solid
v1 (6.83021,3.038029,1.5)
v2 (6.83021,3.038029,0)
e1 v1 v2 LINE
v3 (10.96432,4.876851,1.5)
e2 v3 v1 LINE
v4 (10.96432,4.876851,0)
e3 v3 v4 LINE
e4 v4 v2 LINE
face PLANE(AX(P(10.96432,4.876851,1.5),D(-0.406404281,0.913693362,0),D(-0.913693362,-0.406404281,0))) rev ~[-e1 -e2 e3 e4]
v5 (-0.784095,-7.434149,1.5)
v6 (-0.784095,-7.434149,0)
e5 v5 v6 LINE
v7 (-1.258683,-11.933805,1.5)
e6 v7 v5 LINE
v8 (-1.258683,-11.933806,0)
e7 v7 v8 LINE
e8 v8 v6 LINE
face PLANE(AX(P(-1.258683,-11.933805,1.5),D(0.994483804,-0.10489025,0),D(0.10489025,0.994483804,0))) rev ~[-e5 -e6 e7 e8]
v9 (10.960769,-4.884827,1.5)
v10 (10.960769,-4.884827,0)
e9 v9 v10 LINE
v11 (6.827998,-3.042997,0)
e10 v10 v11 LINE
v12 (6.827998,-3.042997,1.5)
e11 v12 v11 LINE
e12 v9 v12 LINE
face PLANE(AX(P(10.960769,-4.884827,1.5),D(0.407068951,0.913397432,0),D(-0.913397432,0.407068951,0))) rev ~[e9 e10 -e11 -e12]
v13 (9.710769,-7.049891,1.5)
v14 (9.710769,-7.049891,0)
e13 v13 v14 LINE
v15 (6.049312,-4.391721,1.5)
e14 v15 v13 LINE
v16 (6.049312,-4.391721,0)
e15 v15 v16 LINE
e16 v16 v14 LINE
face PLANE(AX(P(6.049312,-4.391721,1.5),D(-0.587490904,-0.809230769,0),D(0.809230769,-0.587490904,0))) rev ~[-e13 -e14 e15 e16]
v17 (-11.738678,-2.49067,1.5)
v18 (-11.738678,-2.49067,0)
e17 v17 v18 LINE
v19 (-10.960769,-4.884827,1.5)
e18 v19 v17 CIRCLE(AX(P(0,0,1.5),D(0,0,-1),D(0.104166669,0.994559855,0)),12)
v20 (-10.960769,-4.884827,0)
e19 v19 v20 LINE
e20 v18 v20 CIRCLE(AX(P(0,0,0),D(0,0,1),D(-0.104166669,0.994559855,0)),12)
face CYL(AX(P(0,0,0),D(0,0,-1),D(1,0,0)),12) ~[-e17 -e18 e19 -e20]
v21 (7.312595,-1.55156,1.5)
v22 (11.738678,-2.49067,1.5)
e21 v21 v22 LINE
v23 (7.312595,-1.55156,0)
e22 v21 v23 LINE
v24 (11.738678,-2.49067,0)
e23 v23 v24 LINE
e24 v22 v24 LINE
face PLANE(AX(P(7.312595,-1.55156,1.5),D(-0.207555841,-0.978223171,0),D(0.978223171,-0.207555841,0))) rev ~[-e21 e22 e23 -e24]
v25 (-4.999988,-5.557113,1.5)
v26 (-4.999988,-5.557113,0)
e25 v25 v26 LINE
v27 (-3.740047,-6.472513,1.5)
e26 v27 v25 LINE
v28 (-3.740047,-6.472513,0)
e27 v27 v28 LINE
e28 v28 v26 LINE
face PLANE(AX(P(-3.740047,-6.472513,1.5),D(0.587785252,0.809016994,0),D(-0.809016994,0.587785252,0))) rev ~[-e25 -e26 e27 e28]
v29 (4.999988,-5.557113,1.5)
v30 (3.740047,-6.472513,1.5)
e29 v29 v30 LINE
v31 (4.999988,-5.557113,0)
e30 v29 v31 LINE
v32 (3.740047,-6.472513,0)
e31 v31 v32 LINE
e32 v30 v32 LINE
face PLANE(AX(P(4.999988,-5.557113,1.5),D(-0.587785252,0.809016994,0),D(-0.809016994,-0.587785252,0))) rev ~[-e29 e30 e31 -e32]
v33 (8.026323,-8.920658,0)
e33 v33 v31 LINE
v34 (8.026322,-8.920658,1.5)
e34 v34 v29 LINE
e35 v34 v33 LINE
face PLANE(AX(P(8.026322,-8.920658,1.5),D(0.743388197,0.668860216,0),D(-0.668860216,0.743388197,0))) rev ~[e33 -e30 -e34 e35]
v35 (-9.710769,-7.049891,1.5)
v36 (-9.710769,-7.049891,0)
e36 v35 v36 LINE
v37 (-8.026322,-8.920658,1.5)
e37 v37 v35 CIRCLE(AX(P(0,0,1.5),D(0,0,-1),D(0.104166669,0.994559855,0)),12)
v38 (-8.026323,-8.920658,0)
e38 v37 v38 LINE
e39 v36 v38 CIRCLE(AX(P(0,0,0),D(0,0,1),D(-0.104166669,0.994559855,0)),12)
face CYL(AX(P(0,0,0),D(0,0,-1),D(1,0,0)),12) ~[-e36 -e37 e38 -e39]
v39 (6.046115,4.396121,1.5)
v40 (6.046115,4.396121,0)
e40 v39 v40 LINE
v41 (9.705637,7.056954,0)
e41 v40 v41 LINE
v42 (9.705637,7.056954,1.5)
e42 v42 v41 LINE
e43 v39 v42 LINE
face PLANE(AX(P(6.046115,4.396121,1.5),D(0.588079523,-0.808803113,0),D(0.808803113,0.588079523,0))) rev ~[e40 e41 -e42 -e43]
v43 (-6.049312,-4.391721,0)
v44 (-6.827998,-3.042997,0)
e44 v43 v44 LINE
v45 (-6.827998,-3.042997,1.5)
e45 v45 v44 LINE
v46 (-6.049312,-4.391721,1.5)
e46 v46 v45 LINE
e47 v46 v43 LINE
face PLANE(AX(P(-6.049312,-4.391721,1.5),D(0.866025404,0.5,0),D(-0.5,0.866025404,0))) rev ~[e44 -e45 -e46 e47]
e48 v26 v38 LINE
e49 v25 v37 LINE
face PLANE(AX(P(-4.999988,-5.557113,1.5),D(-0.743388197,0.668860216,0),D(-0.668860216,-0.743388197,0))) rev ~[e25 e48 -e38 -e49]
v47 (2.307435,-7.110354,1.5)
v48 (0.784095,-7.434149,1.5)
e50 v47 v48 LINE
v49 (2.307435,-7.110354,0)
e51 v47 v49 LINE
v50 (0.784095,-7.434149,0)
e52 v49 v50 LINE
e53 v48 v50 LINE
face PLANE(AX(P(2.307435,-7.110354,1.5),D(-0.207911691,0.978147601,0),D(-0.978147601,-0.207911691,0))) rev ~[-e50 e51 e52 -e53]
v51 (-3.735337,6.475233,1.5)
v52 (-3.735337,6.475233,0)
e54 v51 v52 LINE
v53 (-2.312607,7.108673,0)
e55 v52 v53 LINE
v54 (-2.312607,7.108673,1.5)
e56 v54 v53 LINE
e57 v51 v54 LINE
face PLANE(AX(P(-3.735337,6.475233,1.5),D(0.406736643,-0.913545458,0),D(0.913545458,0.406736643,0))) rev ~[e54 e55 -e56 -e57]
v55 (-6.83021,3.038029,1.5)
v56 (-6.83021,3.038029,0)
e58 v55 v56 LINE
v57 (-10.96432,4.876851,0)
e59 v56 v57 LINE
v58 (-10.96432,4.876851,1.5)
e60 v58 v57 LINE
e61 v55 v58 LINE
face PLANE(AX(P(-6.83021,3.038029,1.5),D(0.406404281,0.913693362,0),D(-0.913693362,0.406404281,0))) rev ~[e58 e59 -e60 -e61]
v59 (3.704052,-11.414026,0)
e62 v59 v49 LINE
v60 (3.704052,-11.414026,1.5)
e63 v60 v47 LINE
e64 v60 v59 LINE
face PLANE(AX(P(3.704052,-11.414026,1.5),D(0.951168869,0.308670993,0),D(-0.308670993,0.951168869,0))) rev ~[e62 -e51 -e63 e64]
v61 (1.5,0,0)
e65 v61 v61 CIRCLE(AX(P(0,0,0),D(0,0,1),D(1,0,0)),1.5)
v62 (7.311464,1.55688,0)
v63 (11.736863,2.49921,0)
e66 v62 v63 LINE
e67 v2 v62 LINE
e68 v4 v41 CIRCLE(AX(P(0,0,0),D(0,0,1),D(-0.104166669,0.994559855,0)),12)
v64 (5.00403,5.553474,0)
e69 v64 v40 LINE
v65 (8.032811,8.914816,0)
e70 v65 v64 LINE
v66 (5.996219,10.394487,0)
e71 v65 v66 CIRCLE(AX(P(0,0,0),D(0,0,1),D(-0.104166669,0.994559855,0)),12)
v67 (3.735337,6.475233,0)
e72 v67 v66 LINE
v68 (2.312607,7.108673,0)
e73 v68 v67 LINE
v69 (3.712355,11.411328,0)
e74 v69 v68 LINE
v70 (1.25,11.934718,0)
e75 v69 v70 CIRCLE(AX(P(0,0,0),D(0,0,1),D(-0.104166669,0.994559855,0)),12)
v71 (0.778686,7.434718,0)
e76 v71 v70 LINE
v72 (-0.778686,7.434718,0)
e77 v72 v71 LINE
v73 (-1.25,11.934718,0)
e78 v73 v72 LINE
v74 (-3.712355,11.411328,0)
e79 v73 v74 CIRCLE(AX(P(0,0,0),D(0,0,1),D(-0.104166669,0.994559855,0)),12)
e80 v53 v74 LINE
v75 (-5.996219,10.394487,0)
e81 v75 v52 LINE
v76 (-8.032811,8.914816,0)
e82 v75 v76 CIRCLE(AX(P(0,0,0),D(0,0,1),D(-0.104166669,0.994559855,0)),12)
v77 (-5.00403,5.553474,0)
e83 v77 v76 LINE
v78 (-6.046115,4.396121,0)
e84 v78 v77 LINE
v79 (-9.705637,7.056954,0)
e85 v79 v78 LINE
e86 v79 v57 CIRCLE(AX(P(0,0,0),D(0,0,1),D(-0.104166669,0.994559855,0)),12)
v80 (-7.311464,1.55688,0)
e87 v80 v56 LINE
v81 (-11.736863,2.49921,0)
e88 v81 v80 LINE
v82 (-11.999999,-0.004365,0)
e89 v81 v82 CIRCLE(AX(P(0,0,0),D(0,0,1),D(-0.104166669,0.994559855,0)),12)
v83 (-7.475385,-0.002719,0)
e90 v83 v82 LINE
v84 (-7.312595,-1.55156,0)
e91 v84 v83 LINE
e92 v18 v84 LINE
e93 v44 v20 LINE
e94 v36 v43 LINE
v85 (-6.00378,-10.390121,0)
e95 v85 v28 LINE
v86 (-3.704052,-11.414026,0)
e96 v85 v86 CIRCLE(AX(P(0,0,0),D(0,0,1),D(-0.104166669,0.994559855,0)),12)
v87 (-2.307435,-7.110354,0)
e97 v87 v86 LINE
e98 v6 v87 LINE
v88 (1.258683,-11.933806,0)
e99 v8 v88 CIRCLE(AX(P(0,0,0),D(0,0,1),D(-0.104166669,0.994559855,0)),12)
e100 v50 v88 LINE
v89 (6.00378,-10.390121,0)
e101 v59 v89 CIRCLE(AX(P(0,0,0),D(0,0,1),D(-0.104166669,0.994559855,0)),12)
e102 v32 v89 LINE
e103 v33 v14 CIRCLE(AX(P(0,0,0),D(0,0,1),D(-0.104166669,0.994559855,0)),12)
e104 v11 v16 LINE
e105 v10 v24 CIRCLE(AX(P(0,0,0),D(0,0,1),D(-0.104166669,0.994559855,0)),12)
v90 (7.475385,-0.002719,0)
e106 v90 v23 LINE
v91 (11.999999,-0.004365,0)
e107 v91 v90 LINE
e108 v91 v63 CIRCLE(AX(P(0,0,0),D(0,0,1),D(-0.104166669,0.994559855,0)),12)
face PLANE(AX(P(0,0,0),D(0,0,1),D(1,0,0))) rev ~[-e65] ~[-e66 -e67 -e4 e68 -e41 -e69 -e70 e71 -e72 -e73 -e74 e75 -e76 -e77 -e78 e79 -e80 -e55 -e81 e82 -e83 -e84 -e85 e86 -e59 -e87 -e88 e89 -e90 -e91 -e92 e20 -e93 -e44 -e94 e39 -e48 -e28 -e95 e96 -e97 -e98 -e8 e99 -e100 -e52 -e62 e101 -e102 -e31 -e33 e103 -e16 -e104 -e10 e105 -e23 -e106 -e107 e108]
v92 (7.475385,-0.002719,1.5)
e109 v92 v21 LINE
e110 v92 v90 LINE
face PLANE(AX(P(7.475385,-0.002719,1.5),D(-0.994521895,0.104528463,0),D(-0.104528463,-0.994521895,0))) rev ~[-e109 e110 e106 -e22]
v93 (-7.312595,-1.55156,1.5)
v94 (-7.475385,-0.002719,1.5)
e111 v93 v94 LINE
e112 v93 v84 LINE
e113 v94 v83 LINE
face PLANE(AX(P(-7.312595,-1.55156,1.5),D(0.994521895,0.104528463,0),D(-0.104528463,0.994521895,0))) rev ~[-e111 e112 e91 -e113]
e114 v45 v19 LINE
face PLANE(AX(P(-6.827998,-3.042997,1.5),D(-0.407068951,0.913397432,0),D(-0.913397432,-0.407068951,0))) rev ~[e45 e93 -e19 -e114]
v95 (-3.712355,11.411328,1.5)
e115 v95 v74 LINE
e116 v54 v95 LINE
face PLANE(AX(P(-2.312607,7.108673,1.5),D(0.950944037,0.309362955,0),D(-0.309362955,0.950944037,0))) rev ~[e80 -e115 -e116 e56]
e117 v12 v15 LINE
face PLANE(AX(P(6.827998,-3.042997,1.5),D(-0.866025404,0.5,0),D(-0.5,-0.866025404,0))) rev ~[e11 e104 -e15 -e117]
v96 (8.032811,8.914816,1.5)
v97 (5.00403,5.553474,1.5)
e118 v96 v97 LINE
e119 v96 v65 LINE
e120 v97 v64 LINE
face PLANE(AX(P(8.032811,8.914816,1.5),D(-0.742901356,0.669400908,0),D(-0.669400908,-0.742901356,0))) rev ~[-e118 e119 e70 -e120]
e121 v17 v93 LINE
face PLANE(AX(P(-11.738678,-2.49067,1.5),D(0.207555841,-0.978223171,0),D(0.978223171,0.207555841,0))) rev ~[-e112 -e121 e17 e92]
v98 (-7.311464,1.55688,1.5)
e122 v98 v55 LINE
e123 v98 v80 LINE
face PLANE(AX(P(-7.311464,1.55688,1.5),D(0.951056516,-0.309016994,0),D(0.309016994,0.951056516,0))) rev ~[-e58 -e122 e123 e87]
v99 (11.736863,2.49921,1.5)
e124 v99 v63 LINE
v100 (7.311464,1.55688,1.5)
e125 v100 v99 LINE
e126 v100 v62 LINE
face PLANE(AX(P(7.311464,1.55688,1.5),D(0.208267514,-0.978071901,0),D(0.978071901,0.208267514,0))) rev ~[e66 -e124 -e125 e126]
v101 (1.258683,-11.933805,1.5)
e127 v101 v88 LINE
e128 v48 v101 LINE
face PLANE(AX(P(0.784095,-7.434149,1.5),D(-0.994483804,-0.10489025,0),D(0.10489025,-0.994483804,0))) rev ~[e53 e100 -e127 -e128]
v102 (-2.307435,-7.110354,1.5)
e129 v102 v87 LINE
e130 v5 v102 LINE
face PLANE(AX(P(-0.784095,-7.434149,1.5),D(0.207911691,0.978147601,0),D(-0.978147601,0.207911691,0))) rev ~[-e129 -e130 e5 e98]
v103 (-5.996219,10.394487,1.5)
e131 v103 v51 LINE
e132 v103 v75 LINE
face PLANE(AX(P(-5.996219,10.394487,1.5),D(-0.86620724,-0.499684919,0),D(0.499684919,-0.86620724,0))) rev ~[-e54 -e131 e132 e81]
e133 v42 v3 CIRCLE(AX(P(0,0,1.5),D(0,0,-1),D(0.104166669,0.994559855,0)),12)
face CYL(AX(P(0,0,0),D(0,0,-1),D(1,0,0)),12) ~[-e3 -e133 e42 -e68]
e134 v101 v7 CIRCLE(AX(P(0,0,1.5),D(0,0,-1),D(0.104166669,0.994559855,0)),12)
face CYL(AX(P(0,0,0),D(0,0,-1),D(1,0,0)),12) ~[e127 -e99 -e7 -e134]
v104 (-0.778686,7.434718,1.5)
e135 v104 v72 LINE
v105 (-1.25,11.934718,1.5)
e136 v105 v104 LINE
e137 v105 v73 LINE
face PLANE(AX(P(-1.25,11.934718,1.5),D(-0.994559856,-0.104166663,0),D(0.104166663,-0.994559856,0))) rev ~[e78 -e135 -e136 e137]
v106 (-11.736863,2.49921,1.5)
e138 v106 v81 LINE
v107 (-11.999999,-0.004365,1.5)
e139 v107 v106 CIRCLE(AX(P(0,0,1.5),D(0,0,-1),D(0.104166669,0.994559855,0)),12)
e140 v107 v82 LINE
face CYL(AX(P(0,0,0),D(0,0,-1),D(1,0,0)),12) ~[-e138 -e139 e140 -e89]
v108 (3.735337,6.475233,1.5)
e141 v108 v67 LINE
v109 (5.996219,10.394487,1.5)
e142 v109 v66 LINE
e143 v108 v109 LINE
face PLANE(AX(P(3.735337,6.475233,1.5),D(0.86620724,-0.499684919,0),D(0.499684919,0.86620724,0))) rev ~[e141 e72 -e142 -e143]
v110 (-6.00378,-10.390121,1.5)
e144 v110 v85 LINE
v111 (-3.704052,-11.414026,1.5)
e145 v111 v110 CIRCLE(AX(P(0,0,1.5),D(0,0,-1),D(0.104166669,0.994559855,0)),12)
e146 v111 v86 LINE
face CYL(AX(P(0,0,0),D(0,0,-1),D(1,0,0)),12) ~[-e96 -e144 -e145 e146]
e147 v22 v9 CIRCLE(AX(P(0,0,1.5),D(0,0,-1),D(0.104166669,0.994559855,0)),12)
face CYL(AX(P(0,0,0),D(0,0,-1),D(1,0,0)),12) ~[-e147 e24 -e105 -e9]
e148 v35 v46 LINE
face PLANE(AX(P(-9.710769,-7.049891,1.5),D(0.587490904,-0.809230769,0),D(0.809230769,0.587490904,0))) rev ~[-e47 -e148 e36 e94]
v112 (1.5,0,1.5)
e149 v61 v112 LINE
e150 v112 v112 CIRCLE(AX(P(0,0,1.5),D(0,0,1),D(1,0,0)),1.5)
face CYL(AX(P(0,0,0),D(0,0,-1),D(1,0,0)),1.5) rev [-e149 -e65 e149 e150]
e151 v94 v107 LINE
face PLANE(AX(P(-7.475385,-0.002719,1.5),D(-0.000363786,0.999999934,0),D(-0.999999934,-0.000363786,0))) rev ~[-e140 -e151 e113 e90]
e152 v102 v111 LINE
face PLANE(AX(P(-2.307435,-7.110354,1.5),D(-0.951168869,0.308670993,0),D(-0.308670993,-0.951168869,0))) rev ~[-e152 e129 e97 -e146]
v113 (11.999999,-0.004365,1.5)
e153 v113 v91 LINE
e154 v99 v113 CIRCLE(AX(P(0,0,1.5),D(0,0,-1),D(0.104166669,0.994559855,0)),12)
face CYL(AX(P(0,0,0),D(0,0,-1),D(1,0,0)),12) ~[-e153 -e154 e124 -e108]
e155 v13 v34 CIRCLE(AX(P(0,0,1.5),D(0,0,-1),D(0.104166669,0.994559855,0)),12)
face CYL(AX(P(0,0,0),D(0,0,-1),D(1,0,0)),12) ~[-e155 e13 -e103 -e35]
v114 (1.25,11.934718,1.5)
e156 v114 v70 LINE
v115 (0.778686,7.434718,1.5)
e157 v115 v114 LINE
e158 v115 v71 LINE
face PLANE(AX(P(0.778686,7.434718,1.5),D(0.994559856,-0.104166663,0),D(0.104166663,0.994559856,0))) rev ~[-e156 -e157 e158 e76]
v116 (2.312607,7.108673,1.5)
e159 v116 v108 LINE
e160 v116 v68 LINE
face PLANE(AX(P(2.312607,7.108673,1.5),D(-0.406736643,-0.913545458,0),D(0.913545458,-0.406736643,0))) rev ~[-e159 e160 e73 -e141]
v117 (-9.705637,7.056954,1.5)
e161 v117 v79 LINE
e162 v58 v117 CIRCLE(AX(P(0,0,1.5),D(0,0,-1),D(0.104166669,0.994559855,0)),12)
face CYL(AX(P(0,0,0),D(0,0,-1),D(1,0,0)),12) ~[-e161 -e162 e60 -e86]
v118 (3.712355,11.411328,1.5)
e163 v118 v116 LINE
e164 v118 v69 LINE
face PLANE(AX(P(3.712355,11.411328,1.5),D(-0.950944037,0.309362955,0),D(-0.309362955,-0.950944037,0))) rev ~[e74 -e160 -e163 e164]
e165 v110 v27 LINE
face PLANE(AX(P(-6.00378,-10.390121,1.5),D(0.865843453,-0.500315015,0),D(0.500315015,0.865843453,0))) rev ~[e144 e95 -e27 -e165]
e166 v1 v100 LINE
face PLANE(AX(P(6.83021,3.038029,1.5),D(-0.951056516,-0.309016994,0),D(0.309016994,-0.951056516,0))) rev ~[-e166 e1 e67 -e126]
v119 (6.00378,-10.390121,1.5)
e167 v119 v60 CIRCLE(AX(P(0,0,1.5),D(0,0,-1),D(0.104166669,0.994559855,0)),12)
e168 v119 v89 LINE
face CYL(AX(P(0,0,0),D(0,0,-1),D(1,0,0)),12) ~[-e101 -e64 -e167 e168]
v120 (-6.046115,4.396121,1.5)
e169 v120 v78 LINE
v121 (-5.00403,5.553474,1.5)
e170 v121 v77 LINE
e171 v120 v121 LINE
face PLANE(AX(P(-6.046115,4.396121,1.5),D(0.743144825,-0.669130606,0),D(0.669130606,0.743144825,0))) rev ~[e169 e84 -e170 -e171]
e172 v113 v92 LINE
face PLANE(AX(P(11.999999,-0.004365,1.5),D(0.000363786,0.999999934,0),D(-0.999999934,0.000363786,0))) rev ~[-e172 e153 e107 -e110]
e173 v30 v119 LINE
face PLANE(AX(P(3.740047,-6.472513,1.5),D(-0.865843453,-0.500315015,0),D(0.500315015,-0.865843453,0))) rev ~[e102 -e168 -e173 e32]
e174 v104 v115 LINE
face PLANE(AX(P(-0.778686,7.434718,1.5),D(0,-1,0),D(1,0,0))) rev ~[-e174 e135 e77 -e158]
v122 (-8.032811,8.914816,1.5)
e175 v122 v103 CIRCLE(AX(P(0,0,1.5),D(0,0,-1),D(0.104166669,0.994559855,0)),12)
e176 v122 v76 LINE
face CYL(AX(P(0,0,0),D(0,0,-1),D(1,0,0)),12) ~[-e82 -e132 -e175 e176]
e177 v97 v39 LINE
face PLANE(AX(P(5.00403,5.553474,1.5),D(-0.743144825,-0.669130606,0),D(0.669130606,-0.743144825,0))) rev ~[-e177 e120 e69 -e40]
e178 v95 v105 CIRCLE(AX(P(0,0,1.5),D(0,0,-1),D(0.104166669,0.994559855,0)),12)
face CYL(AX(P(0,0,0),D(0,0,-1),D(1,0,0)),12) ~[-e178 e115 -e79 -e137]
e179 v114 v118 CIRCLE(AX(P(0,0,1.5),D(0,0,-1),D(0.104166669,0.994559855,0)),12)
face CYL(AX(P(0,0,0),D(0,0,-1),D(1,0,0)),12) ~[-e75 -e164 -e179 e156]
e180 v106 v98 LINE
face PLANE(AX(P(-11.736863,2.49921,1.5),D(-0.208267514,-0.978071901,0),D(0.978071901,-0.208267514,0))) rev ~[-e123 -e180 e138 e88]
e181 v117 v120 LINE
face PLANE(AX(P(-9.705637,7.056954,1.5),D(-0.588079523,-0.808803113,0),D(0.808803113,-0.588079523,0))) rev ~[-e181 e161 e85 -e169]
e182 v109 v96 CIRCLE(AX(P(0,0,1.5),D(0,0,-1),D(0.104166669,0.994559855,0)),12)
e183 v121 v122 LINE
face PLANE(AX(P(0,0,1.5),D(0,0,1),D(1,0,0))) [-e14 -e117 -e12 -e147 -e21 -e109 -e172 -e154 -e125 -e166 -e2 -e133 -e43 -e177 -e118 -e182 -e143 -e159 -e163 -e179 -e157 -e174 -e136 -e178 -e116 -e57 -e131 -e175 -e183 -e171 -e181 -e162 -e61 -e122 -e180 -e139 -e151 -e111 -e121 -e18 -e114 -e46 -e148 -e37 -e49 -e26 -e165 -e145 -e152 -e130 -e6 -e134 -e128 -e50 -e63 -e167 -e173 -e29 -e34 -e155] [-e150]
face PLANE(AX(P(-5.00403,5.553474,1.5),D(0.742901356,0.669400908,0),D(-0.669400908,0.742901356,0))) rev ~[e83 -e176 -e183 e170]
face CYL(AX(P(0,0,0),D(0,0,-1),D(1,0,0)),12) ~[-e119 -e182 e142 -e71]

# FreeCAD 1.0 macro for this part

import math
import FreeCAD as App
import Part
import Sketcher

doc = App.newDocument("Part")
body = doc.addObject("PartDesign::Body", "Body")

sketch1 = body.newObject("Sketcher::SketchObject", "Sketch")
sketch1.AttachmentSupport = (doc.getObject("XY_Plane"), [""])
sketch1.MapMode = "FlatFace"
sketch1.addGeometry([
    Part.Circle(App.Vector(0, 0, 0), App.Vector(0, 0, 1), 12),
    Part.Circle(App.Vector(0, 0, 0), App.Vector(0, 0, 1), 1.5),
], False)
sketch1.addConstraint([
    Sketcher.Constraint("Coincident", 0, 3, -1, 1),
    Sketcher.Constraint("Coincident", 1, 3, -1, 1),
    Sketcher.Constraint("Diameter", 0, 24.0),
    Sketcher.Constraint("Diameter", 1, 3.0),
])
pad1 = body.newObject("PartDesign::Pad", "Pad")
pad1.Profile = sketch1
pad1.Length = 1.5

sketch2 = body.newObject("Sketcher::SketchObject", "Sketch001")
sketch2.AttachmentSupport = (doc.getObject("XY_Plane"), [""])
sketch2.MapMode = "FlatFace"
sketch2.AttachmentOffset = App.Placement(App.Vector(0, 0, 1.5), App.Rotation())
sketch2.addGeometry([
    Part.ArcOfCircle(Part.Circle(App.Vector(0, 0.000048, 0), App.Vector(0, 0, 1), 11.999952), math.radians(84.020819), math.radians(95.979181)),
    Part.LineSegment(App.Vector(-1.25, 11.934718, 0), App.Vector(-0.778686, 7.434718, 0)),
    Part.LineSegment(App.Vector(-0.778686, 7.434718, 0), App.Vector(0.778686, 7.434718, 0)),
    Part.LineSegment(App.Vector(0.778686, 7.434718, 0), App.Vector(1.25, 11.934718, 0)),
], False)
sketch2.addConstraint([
    Sketcher.Constraint("Coincident", 0, 2, 1, 1),
    Sketcher.Constraint("Coincident", 1, 2, 2, 1),
    Sketcher.Constraint("Coincident", 2, 2, 3, 1),
    Sketcher.Constraint("Coincident", 3, 2, 0, 1),
    Sketcher.Constraint("Horizontal", 2),
    Sketcher.Constraint("Symmetric", 0, 2, 3, 2, -2),
    Sketcher.Constraint("Equal", 1, 3),
    Sketcher.Constraint("DistanceY", 1, 2, 0, 2, 4.5),
    Sketcher.Constraint("DistanceX", 0, 2, 3, 2, 2.5),
    Sketcher.Constraint("Radius", 0, 11.999952),
    Sketcher.Constraint("DistanceX", 2, 1, 2, 2, 1.557372),
    Sketcher.Constraint("DistanceY", -1, 1, 0, 2, 11.934718),
])
pocket1 = body.newObject("PartDesign::Pocket", "Pocket")
pocket1.Profile = sketch2
pocket1.Length = 5
doc.recompute()

polarpattern = body.newObject("PartDesign::PolarPattern", "PolarPattern")
polarpattern.Originals = [pocket1]
polarpattern.Axis = (doc.getObject("Z_Axis"), [""])
polarpattern.Angle = 360
polarpattern.Occurrences = 15
body.Tip = polarpattern

doc.recompute()
